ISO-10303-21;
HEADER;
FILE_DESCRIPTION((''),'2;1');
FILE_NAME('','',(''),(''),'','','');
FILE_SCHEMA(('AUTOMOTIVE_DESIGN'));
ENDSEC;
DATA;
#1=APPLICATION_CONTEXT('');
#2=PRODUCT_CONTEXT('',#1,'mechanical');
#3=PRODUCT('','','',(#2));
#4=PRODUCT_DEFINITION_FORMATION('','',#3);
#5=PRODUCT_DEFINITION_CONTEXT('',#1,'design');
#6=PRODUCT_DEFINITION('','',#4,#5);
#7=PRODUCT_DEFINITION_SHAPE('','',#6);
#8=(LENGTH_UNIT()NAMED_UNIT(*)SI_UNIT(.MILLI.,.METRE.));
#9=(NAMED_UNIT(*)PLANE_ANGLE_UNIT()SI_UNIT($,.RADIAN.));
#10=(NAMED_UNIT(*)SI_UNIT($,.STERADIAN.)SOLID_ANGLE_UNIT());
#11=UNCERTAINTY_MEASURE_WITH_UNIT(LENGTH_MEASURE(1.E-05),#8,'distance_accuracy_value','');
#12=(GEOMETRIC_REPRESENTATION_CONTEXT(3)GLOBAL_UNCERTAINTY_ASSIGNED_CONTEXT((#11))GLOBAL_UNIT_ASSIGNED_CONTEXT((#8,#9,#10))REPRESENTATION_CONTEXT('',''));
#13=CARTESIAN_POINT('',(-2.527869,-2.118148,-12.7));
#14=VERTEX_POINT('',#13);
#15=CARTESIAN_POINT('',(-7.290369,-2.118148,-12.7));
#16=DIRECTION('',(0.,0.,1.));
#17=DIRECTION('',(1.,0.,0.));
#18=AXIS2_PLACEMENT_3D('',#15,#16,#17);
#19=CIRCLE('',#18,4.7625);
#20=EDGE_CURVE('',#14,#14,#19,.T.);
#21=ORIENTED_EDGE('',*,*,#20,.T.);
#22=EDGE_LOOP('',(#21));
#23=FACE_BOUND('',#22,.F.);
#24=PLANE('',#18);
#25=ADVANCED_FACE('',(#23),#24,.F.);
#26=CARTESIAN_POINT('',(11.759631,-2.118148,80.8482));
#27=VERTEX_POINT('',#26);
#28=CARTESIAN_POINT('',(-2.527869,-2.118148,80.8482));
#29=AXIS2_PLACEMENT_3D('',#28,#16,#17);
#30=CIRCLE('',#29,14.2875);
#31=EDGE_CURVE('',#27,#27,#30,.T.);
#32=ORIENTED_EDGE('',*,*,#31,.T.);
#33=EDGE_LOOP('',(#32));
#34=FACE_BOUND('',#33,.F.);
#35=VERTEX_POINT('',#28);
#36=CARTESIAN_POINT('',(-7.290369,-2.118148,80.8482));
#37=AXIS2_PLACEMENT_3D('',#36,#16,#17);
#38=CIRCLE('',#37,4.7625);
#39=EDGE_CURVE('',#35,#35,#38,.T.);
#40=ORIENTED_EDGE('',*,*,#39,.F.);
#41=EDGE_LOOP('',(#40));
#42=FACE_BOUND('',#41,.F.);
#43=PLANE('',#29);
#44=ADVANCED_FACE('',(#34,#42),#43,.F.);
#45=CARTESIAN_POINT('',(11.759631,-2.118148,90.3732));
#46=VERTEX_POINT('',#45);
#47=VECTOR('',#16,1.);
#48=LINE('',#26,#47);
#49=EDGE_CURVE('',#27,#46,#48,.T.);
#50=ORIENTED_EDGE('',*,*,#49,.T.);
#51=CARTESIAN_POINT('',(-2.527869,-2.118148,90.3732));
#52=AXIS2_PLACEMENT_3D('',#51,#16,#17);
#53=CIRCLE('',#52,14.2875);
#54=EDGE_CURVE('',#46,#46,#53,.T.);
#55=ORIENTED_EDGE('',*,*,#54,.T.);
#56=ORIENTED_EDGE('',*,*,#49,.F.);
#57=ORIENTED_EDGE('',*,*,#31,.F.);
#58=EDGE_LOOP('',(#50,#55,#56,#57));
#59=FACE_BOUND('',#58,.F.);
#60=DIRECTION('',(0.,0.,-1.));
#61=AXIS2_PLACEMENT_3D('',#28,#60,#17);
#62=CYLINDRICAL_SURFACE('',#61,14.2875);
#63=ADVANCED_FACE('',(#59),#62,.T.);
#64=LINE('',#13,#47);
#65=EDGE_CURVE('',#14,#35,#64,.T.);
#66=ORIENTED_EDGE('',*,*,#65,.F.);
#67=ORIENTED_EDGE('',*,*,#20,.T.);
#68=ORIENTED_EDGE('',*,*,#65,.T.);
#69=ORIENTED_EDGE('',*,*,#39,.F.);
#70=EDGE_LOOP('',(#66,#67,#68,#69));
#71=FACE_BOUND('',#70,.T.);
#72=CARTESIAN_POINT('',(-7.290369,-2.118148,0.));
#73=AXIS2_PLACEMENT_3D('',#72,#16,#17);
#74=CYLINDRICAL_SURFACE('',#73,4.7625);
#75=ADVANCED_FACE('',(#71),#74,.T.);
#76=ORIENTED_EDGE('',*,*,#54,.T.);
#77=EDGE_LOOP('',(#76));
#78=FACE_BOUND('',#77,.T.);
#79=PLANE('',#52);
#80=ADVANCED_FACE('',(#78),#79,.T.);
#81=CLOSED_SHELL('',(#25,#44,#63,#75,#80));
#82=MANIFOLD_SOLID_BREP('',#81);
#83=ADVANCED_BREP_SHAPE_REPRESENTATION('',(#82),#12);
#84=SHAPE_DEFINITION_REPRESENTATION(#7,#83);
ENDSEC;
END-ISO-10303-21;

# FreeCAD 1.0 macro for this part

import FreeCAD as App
import Part
import Sketcher
Q = App.Units.Quantity

doc = App.newDocument("Part")
params = doc.addObject("Spreadsheet::Sheet", "Params")
for row, (alias, value) in enumerate([
    ("sketch1_diameter", "0.375 in"),
    ("pad1_length", "3.183 in"),
    ("sketch2_diameter", "1.125 in"),
    ("pad2_length", "0.375 in"),
    ("sketch3_diameter", "0.375 in"),
    ("pad3_length", "0.5 in"),
], start=1):
    params.set(f"A{row}", alias)
    params.set(f"B{row}", "=" + value)
    params.setAlias(f"B{row}", alias)

body = doc.addObject("PartDesign::Body", "Body")

sketch1 = body.newObject("Sketcher::SketchObject", "Sketch")
sketch1.AttachmentSupport = (doc.getObject("XY_Plane"), [""])
sketch1.MapMode = "FlatFace"
sketch1.addGeometry(Part.Circle(App.Vector(-7.3, -2.1, 0), App.Vector(0, 0, 1), 4.8), False)
sketch1.addConstraint([
    Sketcher.Constraint("Diameter", 0, Q("0.375 in")),
    Sketcher.Constraint("DistanceX", 0, 3, -1, 1, 7.290369),
    Sketcher.Constraint("DistanceY", 0, 3, -1, 1, 2.118148),
])
sketch1.setExpression("Constraints[0]", "Params.sketch1_diameter")
pad1 = body.newObject("PartDesign::Pad", "Pad")
pad1.Profile = sketch1
pad1.setExpression("Length", "Params.pad1_length")

sketch2 = body.newObject("Sketcher::SketchObject", "Sketch001")
sketch2.AttachmentSupport = (doc.getObject("XY_Plane"), [""])
sketch2.MapMode = "FlatFace"
sketch2.AttachmentOffset = App.Placement(App.Vector(0, 0, 3.183 * 25.4), App.Rotation())
sketch2.addGeometry(Part.Circle(App.Vector(-3, -2, 0), App.Vector(0, 0, 1), 14), False)
sketch2.addConstraint([
    Sketcher.Constraint("Diameter", 0, Q("1.125 in")),
    Sketcher.Constraint("DistanceX", 0, 3, -1, 1, 2.527869),
    Sketcher.Constraint("DistanceY", 0, 3, -1, 1, 2.118148),
])
sketch2.setExpression("Constraints[0]", "Params.sketch2_diameter")
pad2 = body.newObject("PartDesign::Pad", "Pad001")
pad2.Profile = sketch2
pad2.setExpression("Length", "Params.pad2_length")

sketch3 = body.newObject("Sketcher::SketchObject", "Sketch002")
sketch3.AttachmentSupport = (doc.getObject("XY_Plane"), [""])
sketch3.MapMode = "FlatFace"
sketch3.addGeometry(Part.Circle(App.Vector(-7.3, -2.1, 0), App.Vector(0, 0, 1), 4.8), False)
sketch3.addConstraint([
    Sketcher.Constraint("Diameter", 0, Q("0.375 in")),
    Sketcher.Constraint("DistanceX", 0, 3, -1, 1, 7.290369),
    Sketcher.Constraint("DistanceY", 0, 3, -1, 1, 2.118148),
])
sketch3.setExpression("Constraints[0]", "Params.sketch3_diameter")
pad3 = body.newObject("PartDesign::Pad", "Pad002")
pad3.Profile = sketch3
pad3.setExpression("Length", "Params.pad3_length")
pad3.Reversed = True

doc.recompute()
